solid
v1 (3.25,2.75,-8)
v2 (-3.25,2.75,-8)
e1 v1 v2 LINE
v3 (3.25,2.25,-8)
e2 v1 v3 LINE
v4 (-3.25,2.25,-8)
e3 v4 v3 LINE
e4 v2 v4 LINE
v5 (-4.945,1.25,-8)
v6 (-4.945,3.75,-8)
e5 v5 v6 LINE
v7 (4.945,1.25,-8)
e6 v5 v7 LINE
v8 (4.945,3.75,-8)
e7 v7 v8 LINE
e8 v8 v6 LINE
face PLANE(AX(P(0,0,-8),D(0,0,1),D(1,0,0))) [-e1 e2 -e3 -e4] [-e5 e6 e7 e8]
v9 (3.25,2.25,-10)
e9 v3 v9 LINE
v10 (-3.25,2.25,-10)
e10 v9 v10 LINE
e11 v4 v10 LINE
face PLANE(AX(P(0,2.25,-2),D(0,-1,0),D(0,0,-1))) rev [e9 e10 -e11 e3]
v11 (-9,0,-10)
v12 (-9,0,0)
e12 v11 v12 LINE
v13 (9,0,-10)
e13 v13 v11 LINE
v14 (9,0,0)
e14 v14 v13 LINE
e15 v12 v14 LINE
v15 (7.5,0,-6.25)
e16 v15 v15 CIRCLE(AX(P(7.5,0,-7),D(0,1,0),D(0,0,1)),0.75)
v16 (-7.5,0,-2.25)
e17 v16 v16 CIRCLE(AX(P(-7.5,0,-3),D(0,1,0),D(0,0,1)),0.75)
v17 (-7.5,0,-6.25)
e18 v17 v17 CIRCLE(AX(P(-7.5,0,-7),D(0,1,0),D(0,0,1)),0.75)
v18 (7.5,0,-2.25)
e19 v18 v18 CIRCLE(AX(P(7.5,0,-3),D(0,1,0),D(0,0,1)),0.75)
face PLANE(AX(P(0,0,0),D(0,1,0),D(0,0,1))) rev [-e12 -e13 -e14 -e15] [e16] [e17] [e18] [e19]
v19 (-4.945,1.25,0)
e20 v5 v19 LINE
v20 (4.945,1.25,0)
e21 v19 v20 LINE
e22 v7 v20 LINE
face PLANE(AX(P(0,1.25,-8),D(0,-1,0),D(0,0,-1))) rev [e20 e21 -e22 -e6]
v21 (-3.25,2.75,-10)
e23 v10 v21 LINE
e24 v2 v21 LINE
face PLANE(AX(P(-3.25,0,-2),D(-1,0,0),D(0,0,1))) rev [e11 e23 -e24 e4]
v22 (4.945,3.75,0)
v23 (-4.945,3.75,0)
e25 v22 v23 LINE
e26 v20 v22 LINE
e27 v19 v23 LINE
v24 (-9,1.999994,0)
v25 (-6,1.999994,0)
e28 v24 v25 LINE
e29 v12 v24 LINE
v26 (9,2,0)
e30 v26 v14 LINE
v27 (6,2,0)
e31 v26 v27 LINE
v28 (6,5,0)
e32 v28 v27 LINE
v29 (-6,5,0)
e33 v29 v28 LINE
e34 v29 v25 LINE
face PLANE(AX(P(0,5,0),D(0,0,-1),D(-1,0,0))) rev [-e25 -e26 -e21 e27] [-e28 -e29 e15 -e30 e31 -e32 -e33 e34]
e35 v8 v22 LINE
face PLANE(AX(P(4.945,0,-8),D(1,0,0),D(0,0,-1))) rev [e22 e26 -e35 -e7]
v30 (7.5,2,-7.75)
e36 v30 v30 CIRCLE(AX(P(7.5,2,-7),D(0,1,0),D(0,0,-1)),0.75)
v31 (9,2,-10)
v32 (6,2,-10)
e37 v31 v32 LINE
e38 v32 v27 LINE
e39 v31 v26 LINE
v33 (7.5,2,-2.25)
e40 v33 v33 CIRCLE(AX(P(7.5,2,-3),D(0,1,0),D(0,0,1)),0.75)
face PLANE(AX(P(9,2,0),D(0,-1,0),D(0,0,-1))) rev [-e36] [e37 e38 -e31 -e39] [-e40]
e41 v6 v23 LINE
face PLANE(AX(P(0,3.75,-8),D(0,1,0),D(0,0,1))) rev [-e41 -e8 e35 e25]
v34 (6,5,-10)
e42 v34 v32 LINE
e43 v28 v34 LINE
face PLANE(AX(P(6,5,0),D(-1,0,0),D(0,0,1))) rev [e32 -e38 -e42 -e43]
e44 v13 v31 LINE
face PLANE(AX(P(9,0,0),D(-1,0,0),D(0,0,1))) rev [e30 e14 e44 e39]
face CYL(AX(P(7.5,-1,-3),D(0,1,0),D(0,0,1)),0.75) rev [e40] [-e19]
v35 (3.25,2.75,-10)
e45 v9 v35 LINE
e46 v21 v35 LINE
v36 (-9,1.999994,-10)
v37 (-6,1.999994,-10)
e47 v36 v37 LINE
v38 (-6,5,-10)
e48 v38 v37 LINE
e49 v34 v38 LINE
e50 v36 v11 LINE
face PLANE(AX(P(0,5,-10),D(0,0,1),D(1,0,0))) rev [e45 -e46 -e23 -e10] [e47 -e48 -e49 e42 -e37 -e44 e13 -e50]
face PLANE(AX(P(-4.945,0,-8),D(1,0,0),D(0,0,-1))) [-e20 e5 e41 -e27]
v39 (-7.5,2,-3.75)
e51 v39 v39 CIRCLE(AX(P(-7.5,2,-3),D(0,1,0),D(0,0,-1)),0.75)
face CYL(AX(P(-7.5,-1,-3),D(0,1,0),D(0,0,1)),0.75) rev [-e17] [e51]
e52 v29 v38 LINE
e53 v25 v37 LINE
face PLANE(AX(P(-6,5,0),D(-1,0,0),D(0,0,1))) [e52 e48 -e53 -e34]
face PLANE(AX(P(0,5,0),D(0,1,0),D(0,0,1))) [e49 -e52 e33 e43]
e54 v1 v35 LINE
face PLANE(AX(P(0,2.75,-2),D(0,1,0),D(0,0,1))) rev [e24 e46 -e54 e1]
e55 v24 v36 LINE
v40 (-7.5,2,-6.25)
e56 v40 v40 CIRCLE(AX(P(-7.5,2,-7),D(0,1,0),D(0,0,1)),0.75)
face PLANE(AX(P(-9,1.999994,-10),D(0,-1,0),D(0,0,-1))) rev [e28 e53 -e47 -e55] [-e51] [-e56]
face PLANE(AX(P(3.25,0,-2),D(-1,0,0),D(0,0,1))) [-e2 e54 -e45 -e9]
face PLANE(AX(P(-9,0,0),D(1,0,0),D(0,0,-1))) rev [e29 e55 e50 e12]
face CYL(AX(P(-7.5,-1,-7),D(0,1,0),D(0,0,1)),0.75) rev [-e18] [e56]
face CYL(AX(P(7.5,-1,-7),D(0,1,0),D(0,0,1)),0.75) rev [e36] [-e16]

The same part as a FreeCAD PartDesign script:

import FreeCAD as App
import Part
import Sketcher

V = App.Vector


def add_polygon(sketch, points):
    """Adds a closed chain of lines whose ends are joined by coincident constraints."""
    first, n = sketch.GeometryCount, len(points)
    for a, b in zip(points, points[1:] + points[:1]):
        sketch.addGeometry(Part.LineSegment(App.Vector(*a, 0), App.Vector(*b, 0)), False)
    for i in range(n):
        sketch.addConstraint(Sketcher.Constraint("Coincident", first + i, 2, first + (i + 1) % n, 1))

doc = App.newDocument("Part")
params = doc.addObject("Spreadsheet::Sheet", "Params")
for row, (alias, value) in enumerate([
    ("sketch1_width", "12 mm"),
    ("sketch1_height", "10 mm"),
    ("pad1_length", "5 mm"),
    ("sketch2_height", "2.5 mm"),
    ("sketch2_width", "9.89 mm"),
    ("pocket1_length", "8 mm"),
    ("sketch3_width", "6.5 mm"),
    ("sketch3_height", "0.5 mm"),
    ("pocket2_length", "8 mm"),
    ("sketch4_height", "10 mm"),
    ("pad2_length", "3 mm"),
    ("sketch5_width", "2 mm"),
    ("sketch5_height", "10 mm"),
    ("pad3_length", "3 mm"),
    ("sketch6_diameter", "1.5 mm"),
    ("pocket3_length", "3 mm"),
], start=1):
    params.set(f"A{row}", alias)
    params.set(f"B{row}", "=" + value)
    params.setAlias(f"B{row}", alias)

body = doc.addObject("PartDesign::Body", "Body")

# Sketch on XZ plane
sketch1 = doc.addObject("Sketcher::SketchObject", "Sketch")
body.addObject(sketch1)
sketch1.AttachmentSupport = (doc.XZ_Plane, [""])
sketch1.MapMode = "FlatFace"
add_polygon(sketch1, [(-6, -10), (-6, 0), (6, 0), (6, -10)])  # lines 0-3
sketch1.addConstraint([
    Sketcher.Constraint("Vertical", 0),
    Sketcher.Constraint("Horizontal", 1),
    Sketcher.Constraint("Vertical", 2),
    Sketcher.Constraint("Horizontal", 3),
    Sketcher.Constraint("Symmetric", 0, 2, 1, 2, -1, 1),
    Sketcher.Constraint("DistanceX", 1, 1, 1, 2, 12.0),
    Sketcher.Constraint("DistanceY", 0, 1, 0, 2, 10.0),
])
sketch1.setExpression("Constraints[9]", "Params.sketch1_width")
sketch1.setExpression("Constraints[10]", "Params.sketch1_height")
pad1 = doc.addObject("PartDesign::Pad", "Pad")
body.addObject(pad1)
pad1.Profile = sketch1
pad1.setExpression("Length", "Params.pad1_length")
pad1.Reversed = True

# Sketch on XY plane
sketch2 = doc.addObject("Sketcher::SketchObject", "Sketch001")
body.addObject(sketch2)
sketch2.AttachmentSupport = (doc.XY_Plane, [""])
sketch2.MapMode = "FlatFace"
add_polygon(sketch2, [(-4.9, 3.8), (-4.9, 1.2), (4.9, 1.2), (4.9, 3.8)])  # lines 0-3
sketch2.addConstraint([
    Sketcher.Constraint("Vertical", 0),
    Sketcher.Constraint("Horizontal", 1),
    Sketcher.Constraint("Vertical", 2),
    Sketcher.Constraint("Horizontal", 3),
    Sketcher.Constraint("DistanceY", 0, 2, 0, 1, 2.5),
    Sketcher.Constraint("DistanceX", 1, 1, 1, 2, 9.89),
    Sketcher.Constraint("DistanceY", -1, 1, 0, 2, 1.25),
    Sketcher.Constraint("DistanceX", 0, 2, -1, 1, 4.945),
])
sketch2.setExpression("Constraints[8]", "Params.sketch2_height")
sketch2.setExpression("Constraints[9]", "Params.sketch2_width")
pocket1 = doc.addObject("PartDesign::Pocket", "Pocket")
body.addObject(pocket1)
pocket1.Profile = sketch2
pocket1.setExpression("Length", "Params.pocket1_length")

# Sketch on XY plane
sketch3 = doc.addObject("Sketcher::SketchObject", "Sketch002")
body.addObject(sketch3)
sketch3.AttachmentSupport = (doc.XY_Plane, [""])
sketch3.MapMode = "FlatFace"
sketch3.AttachmentOffset = App.Placement(V(0, 0, -10), App.Rotation())
add_polygon(sketch3, [(3.2, 2.8), (3.2, 2.2), (-3.2, 2.2), (-3.2, 2.8)])  # lines 0-3
sketch3.addConstraint([
    Sketcher.Constraint("Vertical", 0),
    Sketcher.Constraint("Horizontal", 1),
    Sketcher.Constraint("Vertical", 2),
    Sketcher.Constraint("Horizontal", 3),
    Sketcher.Constraint("DistanceX", 1, 2, 1, 1, 6.5),
    Sketcher.Constraint("DistanceY", 0, 2, 0, 1, 0.5),
    Sketcher.Constraint("DistanceX", -1, 1, 0, 2, 3.25),
    Sketcher.Constraint("DistanceY", -1, 1, 0, 2, 2.25),
])
sketch3.setExpression("Constraints[8]", "Params.sketch3_width")
sketch3.setExpression("Constraints[9]", "Params.sketch3_height")
pocket2 = doc.addObject("PartDesign::Pocket", "Pocket001")
body.addObject(pocket2)
pocket2.Profile = sketch3
pocket2.setExpression("Length", "Params.pocket2_length")
pocket2.Reversed = True

# Sketch on YZ plane
sketch4 = doc.addObject("Sketcher::SketchObject", "Sketch003")
body.addObject(sketch4)
sketch4.AttachmentSupport = (doc.YZ_Plane, [""])
sketch4.MapMode = "FlatFace"
sketch4.AttachmentOffset = App.Placement(V(0, 0, -6), App.Rotation())
add_polygon(sketch4, [(2, -10), (0, -10), (0, 0), (2, 0)])  # lines 0-3
sketch4.addConstraint([
    Sketcher.Constraint("Horizontal", 0),
    Sketcher.Constraint("Vertical", 1),
    Sketcher.Constraint("Horizontal", 2),
    Sketcher.Constraint("Vertical", 3),
    Sketcher.Constraint("Coincident", 1, 2, -1, 1),
    Sketcher.Constraint("DistanceY", 1, 1, 1, 2, 10.0),
    Sketcher.Constraint("DistanceX", 0, 2, 0, 1, 1.999994),
])
sketch4.setExpression("Constraints[9]", "Params.sketch4_height")
pad2 = doc.addObject("PartDesign::Pad", "Pad001")
body.addObject(pad2)
pad2.Profile = sketch4
pad2.setExpression("Length", "Params.pad2_length")
pad2.Reversed = True

# Sketch on YZ plane
sketch5 = doc.addObject("Sketcher::SketchObject", "Sketch004")
body.addObject(sketch5)
sketch5.AttachmentSupport = (doc.YZ_Plane, [""])
sketch5.MapMode = "FlatFace"
sketch5.AttachmentOffset = App.Placement(V(0, 0, 6), App.Rotation())
add_polygon(sketch5, [(2, 0), (0, 0), (0, -10), (2, -10)])  # lines 0-3
sketch5.addConstraint([
    Sketcher.Constraint("Horizontal", 0),
    Sketcher.Constraint("Vertical", 1),
    Sketcher.Constraint("Horizontal", 2),
    Sketcher.Constraint("Vertical", 3),
    Sketcher.Constraint("Coincident", 0, 2, -1, 1),
    Sketcher.Constraint("DistanceX", 0, 2, 0, 1, 2.0),
    Sketcher.Constraint("DistanceY", 1, 2, 1, 1, 10.0),
])
sketch5.setExpression("Constraints[9]", "Params.sketch5_width")
sketch5.setExpression("Constraints[10]", "Params.sketch5_height")
pad3 = doc.addObject("PartDesign::Pad", "Pad002")
body.addObject(pad3)
pad3.Profile = sketch5
pad3.setExpression("Length", "Params.pad3_length")

# Sketch on XZ plane
sketch6 = doc.addObject("Sketcher::SketchObject", "Sketch005")
body.addObject(sketch6)
sketch6.AttachmentSupport = (doc.XZ_Plane, [""])
sketch6.MapMode = "FlatFace"
sketch6.AttachmentOffset = App.Placement(V(0, 0, -2), App.Rotation())
sketch6.addGeometry([
    Part.Circle(V(-7.5, -7, 0), V(0, 0, 1), 0.8),
    Part.Circle(V(-7.5, -3, 0), V(0, 0, 1), 0.8),
    Part.Circle(V(7.5, -3, 0), V(0, 0, 1), 0.8),
    Part.Circle(V(7.5, -7, 0), V(0, 0, 1), 0.8),
], False)
sketch6.addConstraint([
    Sketcher.Constraint("Equal", 0, 1),
    Sketcher.Constraint("Equal", 1, 2),
    Sketcher.Constraint("Equal", 2, 3),
    Sketcher.Constraint("Symmetric", 1, 3, 2, 3, -2),
    Sketcher.Constraint("Symmetric", 0, 3, 3, 3, -2),
    Sketcher.Constraint("Vertical", 0, 3, 1, 3),
    Sketcher.Constraint("Diameter", 0, 1.5),
    Sketcher.Constraint("DistanceY", 0, 3, -1, 1, 7.0),
    Sketcher.Constraint("DistanceY", 1, 3, -1, 1, 3.0),
    Sketcher.Constraint("DistanceX", 1, 3, 2, 3, 15.0),
])
sketch6.setExpression("Constraints[6]", "Params.sketch6_diameter")
pocket3 = doc.addObject("PartDesign::Pocket", "Pocket002")
body.addObject(pocket3)
pocket3.Profile = sketch6
pocket3.setExpression("Length", "Params.pocket3_length")
pocket3.Reversed = True

doc.recompute()
